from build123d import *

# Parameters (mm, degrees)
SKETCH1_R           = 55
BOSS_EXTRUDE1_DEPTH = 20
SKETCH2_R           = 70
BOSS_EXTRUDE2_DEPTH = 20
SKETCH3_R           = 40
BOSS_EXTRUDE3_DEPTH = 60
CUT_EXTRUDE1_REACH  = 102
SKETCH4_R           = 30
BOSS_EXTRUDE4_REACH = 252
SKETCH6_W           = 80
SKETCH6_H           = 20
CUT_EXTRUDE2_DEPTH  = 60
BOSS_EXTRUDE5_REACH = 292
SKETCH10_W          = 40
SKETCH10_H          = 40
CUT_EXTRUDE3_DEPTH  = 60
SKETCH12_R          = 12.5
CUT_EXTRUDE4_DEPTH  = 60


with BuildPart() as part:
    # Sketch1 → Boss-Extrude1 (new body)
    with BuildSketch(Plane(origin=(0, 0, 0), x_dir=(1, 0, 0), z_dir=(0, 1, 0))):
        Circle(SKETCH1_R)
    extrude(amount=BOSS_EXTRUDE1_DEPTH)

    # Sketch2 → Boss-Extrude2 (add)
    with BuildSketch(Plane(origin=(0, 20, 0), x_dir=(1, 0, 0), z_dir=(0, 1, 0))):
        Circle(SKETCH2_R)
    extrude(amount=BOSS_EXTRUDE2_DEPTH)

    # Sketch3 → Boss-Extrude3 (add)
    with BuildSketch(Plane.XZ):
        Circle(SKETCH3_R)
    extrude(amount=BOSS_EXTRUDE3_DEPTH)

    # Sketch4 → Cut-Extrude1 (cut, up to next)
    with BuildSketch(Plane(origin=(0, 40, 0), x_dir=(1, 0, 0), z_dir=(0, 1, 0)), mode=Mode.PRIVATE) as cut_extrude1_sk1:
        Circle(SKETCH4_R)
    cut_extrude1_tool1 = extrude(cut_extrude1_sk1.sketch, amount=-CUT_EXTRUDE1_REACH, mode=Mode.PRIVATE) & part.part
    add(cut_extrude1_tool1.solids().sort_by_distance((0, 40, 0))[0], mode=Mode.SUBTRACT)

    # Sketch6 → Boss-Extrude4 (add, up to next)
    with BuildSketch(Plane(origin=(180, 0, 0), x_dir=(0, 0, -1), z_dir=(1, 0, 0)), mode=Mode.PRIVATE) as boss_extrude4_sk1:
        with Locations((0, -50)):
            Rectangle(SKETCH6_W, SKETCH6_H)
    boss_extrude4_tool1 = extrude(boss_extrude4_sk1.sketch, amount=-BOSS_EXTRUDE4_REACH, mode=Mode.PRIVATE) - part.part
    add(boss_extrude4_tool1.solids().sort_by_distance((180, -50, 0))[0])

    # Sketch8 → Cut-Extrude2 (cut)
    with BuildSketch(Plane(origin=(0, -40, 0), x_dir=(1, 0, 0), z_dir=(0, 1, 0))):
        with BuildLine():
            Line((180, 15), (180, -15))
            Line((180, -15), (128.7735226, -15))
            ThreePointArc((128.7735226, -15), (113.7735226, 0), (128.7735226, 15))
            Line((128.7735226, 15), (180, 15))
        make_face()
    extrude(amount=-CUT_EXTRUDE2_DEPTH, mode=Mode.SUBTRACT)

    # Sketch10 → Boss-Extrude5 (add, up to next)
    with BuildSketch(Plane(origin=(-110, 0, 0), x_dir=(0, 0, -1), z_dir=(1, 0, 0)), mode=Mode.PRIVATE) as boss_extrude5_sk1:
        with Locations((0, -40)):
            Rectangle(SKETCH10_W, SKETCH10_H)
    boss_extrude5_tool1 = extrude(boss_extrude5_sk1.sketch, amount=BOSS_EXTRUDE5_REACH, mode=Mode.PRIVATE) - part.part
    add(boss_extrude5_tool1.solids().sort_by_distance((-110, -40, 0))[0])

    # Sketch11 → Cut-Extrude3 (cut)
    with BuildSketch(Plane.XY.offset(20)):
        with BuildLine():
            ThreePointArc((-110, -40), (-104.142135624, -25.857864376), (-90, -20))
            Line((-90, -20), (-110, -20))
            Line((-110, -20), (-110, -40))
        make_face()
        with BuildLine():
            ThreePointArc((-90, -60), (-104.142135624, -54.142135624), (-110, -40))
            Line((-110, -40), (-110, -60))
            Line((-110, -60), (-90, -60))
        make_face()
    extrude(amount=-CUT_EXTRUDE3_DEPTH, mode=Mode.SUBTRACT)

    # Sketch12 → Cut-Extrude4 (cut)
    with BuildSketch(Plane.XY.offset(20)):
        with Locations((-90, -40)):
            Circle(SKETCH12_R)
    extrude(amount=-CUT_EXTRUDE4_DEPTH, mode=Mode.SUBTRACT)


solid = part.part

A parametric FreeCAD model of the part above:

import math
import FreeCAD as App
import Part
import Sketcher
from FreeCAD import Vector


def add_polygon(sketch, points):
    """Adds a closed chain of lines whose ends are joined by coincident constraints."""
    first, n = sketch.GeometryCount, len(points)
    for a, b in zip(points, points[1:] + points[:1]):
        sketch.addGeometry(Part.LineSegment(App.Vector(*a, 0), App.Vector(*b, 0)), False)
    for i in range(n):
        sketch.addConstraint(Sketcher.Constraint("Coincident", first + i, 2, first + (i + 1) % n, 1))

doc = App.newDocument("Part")
body = doc.addObject("PartDesign::Body", "Body")

sketch1 = doc.addObject("Sketcher::SketchObject", "Sketch")
body.addObject(sketch1)
sketch1.AttachmentSupport = (doc.XZ_Plane, [""])
sketch1.MapMode = "FlatFace"
sketch1.addGeometry(Part.Circle(Vector(0, 0, 0), Vector(0, 0, 1), 55), False)
sketch1.addConstraint([
    Sketcher.Constraint("Coincident", 0, 3, -1, 1),
    Sketcher.Constraint("Diameter", 0, 110.0),
])
pad1 = doc.addObject("PartDesign::Pad", "Pad")
body.addObject(pad1)
pad1.Profile = sketch1
pad1.Length = 20
pad1.Reversed = True

sketch2 = doc.addObject("Sketcher::SketchObject", "Sketch001")
body.addObject(sketch2)
sketch2.AttachmentSupport = (doc.XZ_Plane, [""])
sketch2.MapMode = "FlatFace"
sketch2.AttachmentOffset = App.Placement(Vector(0, 0, -20), App.Rotation())
sketch2.addGeometry(Part.Circle(Vector(0, 0, 0), Vector(0, 0, 1), 70), False)
sketch2.addConstraint([
    Sketcher.Constraint("Coincident", 0, 3, -1, 1),
    Sketcher.Constraint("Diameter", 0, 140.0),
])
pad2 = doc.addObject("PartDesign::Pad", "Pad001")
body.addObject(pad2)
pad2.Profile = sketch2
pad2.Length = 20
pad2.Reversed = True

sketch3 = doc.addObject("Sketcher::SketchObject", "Sketch002")
body.addObject(sketch3)
sketch3.AttachmentSupport = (doc.XZ_Plane, [""])
sketch3.MapMode = "FlatFace"
sketch3.addGeometry(Part.Circle(Vector(0, 0, 0), Vector(0, 0, 1), 40), False)
sketch3.addConstraint([
    Sketcher.Constraint("Coincident", 0, 3, -1, 1),
    Sketcher.Constraint("Diameter", 0, 80.0),
])
pad3 = doc.addObject("PartDesign::Pad", "Pad002")
body.addObject(pad3)
pad3.Profile = sketch3
pad3.Length = 60

sketch4 = doc.addObject("Sketcher::SketchObject", "Sketch003")
body.addObject(sketch4)
sketch4.AttachmentSupport = (doc.XZ_Plane, [""])
sketch4.MapMode = "FlatFace"
sketch4.AttachmentOffset = App.Placement(Vector(0, 0, -40), App.Rotation())
sketch4.addGeometry(Part.Circle(Vector(0, 0, 0), Vector(0, 0, 1), 30), False)
sketch4.addConstraint([
    Sketcher.Constraint("Coincident", 0, 3, -1, 1),
    Sketcher.Constraint("Diameter", 0, 60.0),
])
pocket1 = doc.addObject("PartDesign::Pocket", "Pocket")
body.addObject(pocket1)
pocket1.Profile = sketch4
pocket1.Type = "UpToFirst"
pocket1.Reversed = True

sketch5 = doc.addObject("Sketcher::SketchObject", "Sketch004")
body.addObject(sketch5)
sketch5.AttachmentSupport = (doc.YZ_Plane, [""])
sketch5.MapMode = "FlatFace"
sketch5.AttachmentOffset = App.Placement(Vector(0, 0, 180), App.Rotation())
add_polygon(sketch5, [(-40, 40), (-60, 40), (-60, -40), (-40, -40)])
sketch5.addConstraint([
    Sketcher.Constraint("Horizontal", 0),
    Sketcher.Constraint("Vertical", 1),
    Sketcher.Constraint("Horizontal", 2),
    Sketcher.Constraint("Vertical", 3),
    Sketcher.Constraint("DistanceX", 0, 2, 0, 1, 20.0),
    Sketcher.Constraint("DistanceY", 1, 2, 1, 1, 80.0),
    Sketcher.Constraint("DistanceX", 0, 2, -1, 1, 60.0),
    Sketcher.Constraint("DistanceY", -1, 1, 0, 2, 40.0),
])
pad4 = doc.addObject("PartDesign::Pad", "Pad003")
body.addObject(pad4)
pad4.Profile = sketch5
pad4.Type = "UpToFirst"
pad4.Reversed = True

sketch6 = doc.addObject("Sketcher::SketchObject", "Sketch005")
body.addObject(sketch6)
sketch6.AttachmentSupport = (doc.XZ_Plane, [""])
sketch6.MapMode = "FlatFace"
sketch6.AttachmentOffset = App.Placement(Vector(0, 0, 40), App.Rotation())
sketch6.addGeometry([
    Part.LineSegment(Vector(180, 15, 0), Vector(180, -15, 0)),
    Part.LineSegment(Vector(180, -15, 0), Vector(129, -15, 0)),
    Part.ArcOfCircle(Part.Circle(Vector(129, 0, 0), Vector(0, 0, 1), 15), math.radians(90), math.radians(270)),
    Part.LineSegment(Vector(129, 15, 0), Vector(180, 15, 0)),
], False)
sketch6.addConstraint([
    Sketcher.Constraint("Coincident", 0, 2, 1, 1),
    Sketcher.Constraint("Tangent", 1, 2, 2, 2),
    Sketcher.Constraint("Tangent", 2, 1, 3, 1),
    Sketcher.Constraint("Coincident", 3, 2, 0, 1),
    Sketcher.Constraint("Vertical", 0),
    Sketcher.Constraint("Horizontal", 1),
    Sketcher.Constraint("Horizontal", 3),
    Sketcher.Constraint("PointOnObject", 2, 3, -1),
    Sketcher.Constraint("Radius", 2, 15.0),
    Sketcher.Constraint("DistanceX", -1, 1, 0, 2, 180.0),
    Sketcher.Constraint("DistanceX", 1, 2, 1, 1, 51.226477),
])
pocket2 = doc.addObject("PartDesign::Pocket", "Pocket001")
body.addObject(pocket2)
pocket2.Profile = sketch6
pocket2.Length = 60
pocket2.Reversed = True

sketch7 = doc.addObject("Sketcher::SketchObject", "Sketch006")
body.addObject(sketch7)
sketch7.AttachmentSupport = (doc.YZ_Plane, [""])
sketch7.MapMode = "FlatFace"
sketch7.AttachmentOffset = App.Placement(Vector(0, 0, -110), App.Rotation())
add_polygon(sketch7, [(-20, 20), (-60, 20), (-60, -20), (-20, -20)])
sketch7.addConstraint([
    Sketcher.Constraint("Horizontal", 0),
    Sketcher.Constraint("Vertical", 1),
    Sketcher.Constraint("Horizontal", 2),
    Sketcher.Constraint("Vertical", 3),
    Sketcher.Constraint("Equal", 2, 1),
    Sketcher.Constraint("DistanceX", 0, 2, 0, 1, 40.0),
    Sketcher.Constraint("DistanceX", 0, 2, -1, 1, 60.0),
    Sketcher.Constraint("DistanceY", -1, 1, 0, 2, 20.0),
])
pad5 = doc.addObject("PartDesign::Pad", "Pad004")
body.addObject(pad5)
pad5.Profile = sketch7
pad5.Type = "UpToFirst"

sketch8 = doc.addObject("Sketcher::SketchObject", "Sketch007")
body.addObject(sketch8)
sketch8.AttachmentSupport = (doc.XY_Plane, [""])
sketch8.MapMode = "FlatFace"
sketch8.AttachmentOffset = App.Placement(Vector(0, 0, 20), App.Rotation())
sketch8.addGeometry([
    Part.ArcOfCircle(Part.Circle(Vector(-90, -40, 0), Vector(0, 0, 1), 20), math.radians(90), math.radians(180)),
    Part.LineSegment(Vector(-90, -20, 0), Vector(-110, -20, 0)),
    Part.LineSegment(Vector(-110, -20, 0), Vector(-110, -40, 0)),
    Part.ArcOfCircle(Part.Circle(Vector(-90, -40, 0), Vector(0, 0, 1), 20), math.radians(180), math.radians(270)),
    Part.LineSegment(Vector(-110, -40, 0), Vector(-110, -60, 0)),
    Part.LineSegment(Vector(-110, -60, 0), Vector(-90, -60, 0)),
], False)
sketch8.addConstraint([
    Sketcher.Constraint("Tangent", 0, 1, 1, 1),
    Sketcher.Constraint("Coincident", 1, 2, 2, 1),
    Sketcher.Constraint("Tangent", 2, 2, 0, 2),
    Sketcher.Constraint("Tangent", 3, 1, 4, 1),
    Sketcher.Constraint("Coincident", 4, 2, 5, 1),
    Sketcher.Constraint("Tangent", 5, 2, 3, 2),
    Sketcher.Constraint("Horizontal", 1),
    Sketcher.Constraint("Vertical", 2),
    Sketcher.Constraint("Vertical", 4),
    Sketcher.Constraint("Horizontal", 5),
    Sketcher.Constraint("Coincident", 3, 3, 0, 3),
    Sketcher.Constraint("Equal", 0, 3),
    Sketcher.Constraint("Radius", 0, 20.0),
    Sketcher.Constraint("DistanceX", 0, 3, -1, 1, 90.0),
    Sketcher.Constraint("DistanceY", 0, 3, -1, 1, 40.0),
])
pocket3 = doc.addObject("PartDesign::Pocket", "Pocket002")
body.addObject(pocket3)
pocket3.Profile = sketch8
pocket3.Length = 60

sketch9 = doc.addObject("Sketcher::SketchObject", "Sketch008")
body.addObject(sketch9)
sketch9.AttachmentSupport = (doc.XY_Plane, [""])
sketch9.MapMode = "FlatFace"
sketch9.AttachmentOffset = App.Placement(Vector(0, 0, 20), App.Rotation())
sketch9.addGeometry(Part.Circle(Vector(-90, -40, 0), Vector(0, 0, 1), 12), False)
sketch9.addConstraint([
    Sketcher.Constraint("Diameter", 0, 25.0),
    Sketcher.Constraint("DistanceX", 0, 3, -1, 1, 90.0),
    Sketcher.Constraint("DistanceY", 0, 3, -1, 1, 40.0),
])
pocket4 = doc.addObject("PartDesign::Pocket", "Pocket003")
body.addObject(pocket4)
pocket4.Profile = sketch9
pocket4.Length = 60

doc.recompute()
